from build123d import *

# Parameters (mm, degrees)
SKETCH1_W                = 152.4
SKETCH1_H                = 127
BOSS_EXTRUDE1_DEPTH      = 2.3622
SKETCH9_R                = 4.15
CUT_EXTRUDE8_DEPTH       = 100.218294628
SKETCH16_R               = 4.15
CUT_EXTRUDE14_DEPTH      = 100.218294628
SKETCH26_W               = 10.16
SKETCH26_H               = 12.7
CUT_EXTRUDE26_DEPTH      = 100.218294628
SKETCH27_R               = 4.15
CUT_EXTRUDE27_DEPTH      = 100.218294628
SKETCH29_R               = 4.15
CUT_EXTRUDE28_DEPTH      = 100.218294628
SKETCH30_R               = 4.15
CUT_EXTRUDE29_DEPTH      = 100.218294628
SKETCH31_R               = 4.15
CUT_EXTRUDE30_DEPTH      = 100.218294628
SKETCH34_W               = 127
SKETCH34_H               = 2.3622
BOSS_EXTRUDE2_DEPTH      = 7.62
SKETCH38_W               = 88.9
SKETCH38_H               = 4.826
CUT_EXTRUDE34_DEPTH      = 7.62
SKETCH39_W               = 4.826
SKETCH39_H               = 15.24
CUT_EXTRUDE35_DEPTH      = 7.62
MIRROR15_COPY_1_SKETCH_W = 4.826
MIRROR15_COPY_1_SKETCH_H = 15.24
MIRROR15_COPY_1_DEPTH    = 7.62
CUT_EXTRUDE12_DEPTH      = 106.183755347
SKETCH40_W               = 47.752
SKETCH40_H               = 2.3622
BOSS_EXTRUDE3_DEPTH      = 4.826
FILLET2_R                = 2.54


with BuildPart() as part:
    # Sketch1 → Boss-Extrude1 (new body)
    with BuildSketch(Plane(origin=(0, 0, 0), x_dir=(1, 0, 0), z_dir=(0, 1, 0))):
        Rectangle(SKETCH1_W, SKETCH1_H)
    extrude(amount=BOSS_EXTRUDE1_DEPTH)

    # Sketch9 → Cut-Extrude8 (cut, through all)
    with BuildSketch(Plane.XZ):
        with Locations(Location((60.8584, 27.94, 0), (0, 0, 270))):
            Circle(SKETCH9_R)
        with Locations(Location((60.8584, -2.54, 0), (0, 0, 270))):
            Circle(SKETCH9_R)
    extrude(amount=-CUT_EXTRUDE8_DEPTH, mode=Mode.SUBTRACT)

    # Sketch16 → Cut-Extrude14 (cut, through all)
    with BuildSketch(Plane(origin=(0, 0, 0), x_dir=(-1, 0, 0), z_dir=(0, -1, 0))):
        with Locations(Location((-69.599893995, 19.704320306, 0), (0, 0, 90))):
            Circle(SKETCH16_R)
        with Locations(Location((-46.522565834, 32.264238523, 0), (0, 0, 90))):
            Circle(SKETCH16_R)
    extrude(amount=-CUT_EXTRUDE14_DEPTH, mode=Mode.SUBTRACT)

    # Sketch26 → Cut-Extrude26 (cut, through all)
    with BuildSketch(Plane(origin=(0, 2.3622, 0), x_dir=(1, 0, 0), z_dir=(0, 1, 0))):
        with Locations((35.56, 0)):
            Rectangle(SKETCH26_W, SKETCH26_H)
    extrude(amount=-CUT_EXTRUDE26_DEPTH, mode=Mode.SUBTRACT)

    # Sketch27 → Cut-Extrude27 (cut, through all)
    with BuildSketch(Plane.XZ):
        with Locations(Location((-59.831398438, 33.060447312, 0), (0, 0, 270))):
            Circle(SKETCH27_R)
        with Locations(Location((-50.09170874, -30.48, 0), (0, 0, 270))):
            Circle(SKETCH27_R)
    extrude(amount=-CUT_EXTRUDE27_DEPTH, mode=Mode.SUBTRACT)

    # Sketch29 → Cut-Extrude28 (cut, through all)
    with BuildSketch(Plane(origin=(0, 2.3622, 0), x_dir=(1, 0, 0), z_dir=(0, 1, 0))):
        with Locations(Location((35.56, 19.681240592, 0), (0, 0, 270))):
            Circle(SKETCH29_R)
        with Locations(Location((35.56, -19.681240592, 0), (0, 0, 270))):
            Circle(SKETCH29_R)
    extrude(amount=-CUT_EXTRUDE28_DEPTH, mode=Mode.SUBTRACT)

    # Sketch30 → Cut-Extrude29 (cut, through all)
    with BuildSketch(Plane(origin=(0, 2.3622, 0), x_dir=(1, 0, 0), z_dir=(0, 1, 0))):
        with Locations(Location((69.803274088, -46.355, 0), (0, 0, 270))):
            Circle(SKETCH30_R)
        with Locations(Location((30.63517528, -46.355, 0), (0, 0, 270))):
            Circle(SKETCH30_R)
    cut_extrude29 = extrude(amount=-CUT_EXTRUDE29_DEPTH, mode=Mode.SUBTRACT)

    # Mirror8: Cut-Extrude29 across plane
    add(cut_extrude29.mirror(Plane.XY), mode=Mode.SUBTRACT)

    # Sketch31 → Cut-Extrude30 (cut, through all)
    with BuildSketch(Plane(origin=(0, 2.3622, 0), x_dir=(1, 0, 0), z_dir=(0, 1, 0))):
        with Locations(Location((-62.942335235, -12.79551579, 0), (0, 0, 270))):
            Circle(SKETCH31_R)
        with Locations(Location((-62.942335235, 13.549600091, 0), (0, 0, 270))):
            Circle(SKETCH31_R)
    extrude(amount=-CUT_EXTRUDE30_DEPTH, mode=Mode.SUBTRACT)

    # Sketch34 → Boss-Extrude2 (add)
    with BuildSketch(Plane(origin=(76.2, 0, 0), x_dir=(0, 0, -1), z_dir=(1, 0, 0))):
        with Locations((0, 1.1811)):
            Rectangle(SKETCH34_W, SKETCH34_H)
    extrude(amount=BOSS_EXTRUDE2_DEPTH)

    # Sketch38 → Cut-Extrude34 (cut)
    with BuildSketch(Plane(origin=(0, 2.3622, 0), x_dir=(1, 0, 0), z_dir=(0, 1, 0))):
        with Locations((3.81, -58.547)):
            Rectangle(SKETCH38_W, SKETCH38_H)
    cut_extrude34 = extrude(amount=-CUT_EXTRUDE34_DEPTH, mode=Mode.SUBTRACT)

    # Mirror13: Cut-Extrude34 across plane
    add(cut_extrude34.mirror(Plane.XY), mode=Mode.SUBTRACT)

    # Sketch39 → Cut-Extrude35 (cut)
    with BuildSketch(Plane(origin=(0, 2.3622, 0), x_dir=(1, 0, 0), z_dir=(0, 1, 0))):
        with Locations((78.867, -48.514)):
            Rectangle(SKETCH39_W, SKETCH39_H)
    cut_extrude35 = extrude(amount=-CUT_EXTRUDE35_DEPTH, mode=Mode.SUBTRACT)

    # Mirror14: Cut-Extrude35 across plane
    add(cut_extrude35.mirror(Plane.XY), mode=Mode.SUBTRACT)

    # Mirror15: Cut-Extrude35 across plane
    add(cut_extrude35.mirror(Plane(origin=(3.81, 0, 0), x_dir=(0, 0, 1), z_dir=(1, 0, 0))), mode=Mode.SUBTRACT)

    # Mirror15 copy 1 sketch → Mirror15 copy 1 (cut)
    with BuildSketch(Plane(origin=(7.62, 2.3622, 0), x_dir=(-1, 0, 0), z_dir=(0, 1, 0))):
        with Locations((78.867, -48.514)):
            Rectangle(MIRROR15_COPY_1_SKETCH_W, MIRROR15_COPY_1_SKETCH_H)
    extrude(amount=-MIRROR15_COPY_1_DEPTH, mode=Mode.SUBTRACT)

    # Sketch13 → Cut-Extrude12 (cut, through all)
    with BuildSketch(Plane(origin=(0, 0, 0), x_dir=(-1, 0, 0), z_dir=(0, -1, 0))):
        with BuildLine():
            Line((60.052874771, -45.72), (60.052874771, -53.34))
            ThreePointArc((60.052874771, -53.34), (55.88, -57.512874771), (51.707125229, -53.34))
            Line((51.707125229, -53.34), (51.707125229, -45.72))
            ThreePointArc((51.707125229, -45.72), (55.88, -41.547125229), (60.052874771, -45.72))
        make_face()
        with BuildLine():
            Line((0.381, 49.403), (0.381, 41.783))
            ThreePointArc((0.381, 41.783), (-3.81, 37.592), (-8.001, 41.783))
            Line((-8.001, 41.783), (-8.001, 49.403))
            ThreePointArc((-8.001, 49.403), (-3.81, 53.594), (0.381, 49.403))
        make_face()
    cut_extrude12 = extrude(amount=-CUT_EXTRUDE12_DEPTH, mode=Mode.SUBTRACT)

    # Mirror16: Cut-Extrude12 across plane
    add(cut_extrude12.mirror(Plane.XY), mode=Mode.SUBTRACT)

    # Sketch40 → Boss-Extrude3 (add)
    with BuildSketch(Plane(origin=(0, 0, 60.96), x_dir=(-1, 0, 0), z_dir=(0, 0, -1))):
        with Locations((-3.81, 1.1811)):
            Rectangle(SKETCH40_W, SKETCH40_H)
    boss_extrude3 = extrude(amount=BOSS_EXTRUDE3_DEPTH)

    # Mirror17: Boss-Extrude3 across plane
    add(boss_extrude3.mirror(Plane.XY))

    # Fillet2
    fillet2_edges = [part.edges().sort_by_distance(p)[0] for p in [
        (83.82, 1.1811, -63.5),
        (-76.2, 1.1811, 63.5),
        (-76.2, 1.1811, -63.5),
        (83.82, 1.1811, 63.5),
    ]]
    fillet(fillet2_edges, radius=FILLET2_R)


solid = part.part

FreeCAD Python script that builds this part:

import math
import FreeCAD as App
import Part
import Sketcher
from FreeCAD import Vector
Q = App.Units.Quantity


def edges_at(feature, points):
    """Names of the edges that pass closest to the given points."""
    edges = feature.Shape.Edges
    near = lambda p: min(range(len(edges)), key=lambda i: edges[i].distToShape(Part.Vertex(*p))[0])
    return sorted({f"Edge{near(p) + 1}" for p in points})


def add_polygon(sketch, points):
    """Adds a closed chain of lines whose ends are joined by coincident constraints."""
    first, n = sketch.GeometryCount, len(points)
    for a, b in zip(points, points[1:] + points[:1]):
        sketch.addGeometry(Part.LineSegment(App.Vector(*a, 0), App.Vector(*b, 0)), False)
    for i in range(n):
        sketch.addConstraint(Sketcher.Constraint("Coincident", first + i, 2, first + (i + 1) % n, 1))

doc = App.newDocument("Part")
body = doc.addObject("PartDesign::Body", "Body")

# Sketch on XZ plane
sketch1 = body.newObject("Sketcher::SketchObject", "Sketch")
sketch1.AttachmentSupport = (doc.getObject("XZ_Plane"), [""])
sketch1.MapMode = "FlatFace"
add_polygon(sketch1, [(-76, -64), (-76, 64), (76, 64), (76, -64)])  # lines 0-3
sketch1.addConstraint(Sketcher.Constraint("Vertical", 0))
sketch1.addConstraint(Sketcher.Constraint("Horizontal", 1))
sketch1.addConstraint(Sketcher.Constraint("Vertical", 2))
sketch1.addConstraint(Sketcher.Constraint("Horizontal", 3))
sketch1.addConstraint(Sketcher.Constraint("Symmetric", 0, 2, 2, 2, -1, 1))
sketch1.addConstraint(Sketcher.Constraint("DistanceX", 1, 1, 1, 2, Q("6 in")))
sketch1.addConstraint(Sketcher.Constraint("DistanceY", 0, 1, 0, 2, Q("5 in")))
pad1 = body.newObject("PartDesign::Pad", "Pad")
pad1.Profile = sketch1
pad1.Length = Q("0.093 in")
pad1.Reversed = True

# Sketch on XZ plane
sketch2 = body.newObject("Sketcher::SketchObject", "Sketch001")
sketch2.AttachmentSupport = (doc.getObject("XZ_Plane"), [""])
sketch2.MapMode = "FlatFace"
sketch2.addGeometry(Part.Circle(Vector(60.9, 27.9, 0), Vector(0, 0, 1), 4.2), False)
sketch2.addGeometry(Part.Circle(Vector(60.9, -2.5, 0), Vector(0, 0, 1), 4.2), False)
sketch2.addConstraint(Sketcher.Constraint("Equal", 0, 1))
sketch2.addConstraint(Sketcher.Constraint("Vertical", 0, 3, 1, 3))
sketch2.addConstraint(Sketcher.Constraint("DistanceY", -1, 1, 0, 3, Q("1.1 in")))
sketch2.addConstraint(Sketcher.Constraint("DistanceY", 1, 3, -1, 1, Q("0.1 in")))
sketch2.addConstraint(Sketcher.Constraint("Diameter", 0, 8.3))
sketch2.addConstraint(Sketcher.Constraint("DistanceX", -1, 1, 0, 3, Q("2.396 in")))
pocket1 = body.newObject("PartDesign::Pocket", "Pocket")
pocket1.Profile = sketch2
pocket1.Type = "ThroughAll"

# Sketch on XZ plane
sketch3 = body.newObject("Sketcher::SketchObject", "Sketch002")
sketch3.AttachmentSupport = (doc.getObject("XZ_Plane"), [""])
sketch3.MapMode = "FlatFace"
sketch3.addGeometry(Part.Circle(Vector(69.6, -19.7, 0), Vector(0, 0, 1), 4.2), False)
sketch3.addGeometry(Part.Circle(Vector(46.5, -32.3, 0), Vector(0, 0, 1), 4.2), False)
sketch3.addConstraint(Sketcher.Constraint("Equal", 0, 1))
sketch3.addConstraint(Sketcher.Constraint("Diameter", 0, 8.3))
sketch3.addConstraint(Sketcher.Constraint("DistanceY", 0, 3, -1, 1, 19.70432))
sketch3.addConstraint(Sketcher.Constraint("DistanceY", 1, 3, -1, 1, 32.264239))
sketch3.addConstraint(Sketcher.Constraint("DistanceX", 1, 3, 0, 3, 23.077328))
sketch3.addConstraint(Sketcher.Constraint("DistanceX", -1, 1, 0, 3, 69.599894))
pocket2 = body.newObject("PartDesign::Pocket", "Pocket001")
pocket2.Profile = sketch3
pocket2.Type = "ThroughAll"

# Sketch on XZ plane
sketch4 = body.newObject("Sketcher::SketchObject", "Sketch003")
sketch4.AttachmentSupport = (doc.getObject("XZ_Plane"), [""])
sketch4.MapMode = "FlatFace"
sketch4.AttachmentOffset = App.Placement(Vector(0, 0, -0.093 * 25.4), App.Rotation())
add_polygon(sketch4, [(30, -6), (30, 6), (41, 6), (41, -6)])  # lines 0-3
sketch4.addConstraint(Sketcher.Constraint("Vertical", 0))
sketch4.addConstraint(Sketcher.Constraint("Horizontal", 1))
sketch4.addConstraint(Sketcher.Constraint("Vertical", 2))
sketch4.addConstraint(Sketcher.Constraint("Horizontal", 3))
sketch4.addConstraint(Sketcher.Constraint("DistanceX", 1, 1, 1, 2, Q("0.4 in")))
sketch4.addConstraint(Sketcher.Constraint("DistanceY", 0, 1, 0, 2, Q("0.5 in")))
sketch4.addConstraint(Sketcher.Constraint("DistanceX", -1, 1, 0, 2, Q("1.2 in")))
sketch4.addConstraint(Sketcher.Constraint("DistanceY", -1, 1, 0, 2, Q("0.25 in")))
pocket3 = body.newObject("PartDesign::Pocket", "Pocket002")
pocket3.Profile = sketch4
pocket3.Type = "ThroughAll"
pocket3.Reversed = True

# Sketch on XZ plane
sketch5 = body.newObject("Sketcher::SketchObject", "Sketch004")
sketch5.AttachmentSupport = (doc.getObject("XZ_Plane"), [""])
sketch5.MapMode = "FlatFace"
sketch5.addGeometry(Part.Circle(Vector(-59.8, 33.1, 0), Vector(0, 0, 1), 4.2), False)
sketch5.addGeometry(Part.Circle(Vector(-50.1, -30.5, 0), Vector(0, 0, 1), 4.2), False)
sketch5.addConstraint(Sketcher.Constraint("Equal", 0, 1))
sketch5.addConstraint(Sketcher.Constraint("DistanceY", 1, 3, -1, 1, Q("1.2 in")))
sketch5.addConstraint(Sketcher.Constraint("Diameter", 0, 8.3))
sketch5.addConstraint(Sketcher.Constraint("DistanceX", 0, 3, -1, 1, 59.831398))
sketch5.addConstraint(Sketcher.Constraint("DistanceX", 1, 3, -1, 1, 50.091709))
sketch5.addConstraint(Sketcher.Constraint("DistanceY", -1, 1, 0, 3, 33.060447))
pocket4 = body.newObject("PartDesign::Pocket", "Pocket003")
pocket4.Profile = sketch5
pocket4.Type = "ThroughAll"

# Sketch on XZ plane
sketch6 = body.newObject("Sketcher::SketchObject", "Sketch005")
sketch6.AttachmentSupport = (doc.getObject("XZ_Plane"), [""])
sketch6.MapMode = "FlatFace"
sketch6.AttachmentOffset = App.Placement(Vector(0, 0, -0.093 * 25.4), App.Rotation())
sketch6.addGeometry(Part.Circle(Vector(35.6, -19.7, 0), Vector(0, 0, 1), 4.2), False)
sketch6.addGeometry(Part.Circle(Vector(35.6, 19.7, 0), Vector(0, 0, 1), 4.2), False)
sketch6.addConstraint(Sketcher.Constraint("Equal", 0, 1))
sketch6.addConstraint(Sketcher.Constraint("Symmetric", 0, 3, 1, 3, -1))
sketch6.addConstraint(Sketcher.Constraint("DistanceX", -1, 1, 0, 3, Q("1.4 in")))
sketch6.addConstraint(Sketcher.Constraint("Diameter", 0, 8.3))
sketch6.addConstraint(Sketcher.Constraint("DistanceY", 0, 3, -1, 1, 19.681241))
pocket5 = body.newObject("PartDesign::Pocket", "Pocket004")
pocket5.Profile = sketch6
pocket5.Type = "ThroughAll"
pocket5.Reversed = True

# Sketch on XZ plane
sketch7 = body.newObject("Sketcher::SketchObject", "Sketch006")
sketch7.AttachmentSupport = (doc.getObject("XZ_Plane"), [""])
sketch7.MapMode = "FlatFace"
sketch7.AttachmentOffset = App.Placement(Vector(0, 0, -0.093 * 25.4), App.Rotation())
sketch7.addGeometry(Part.Circle(Vector(69.8, 46.4, 0), Vector(0, 0, 1), 4.2), False)
sketch7.addGeometry(Part.Circle(Vector(30.6, 46.4, 0), Vector(0, 0, 1), 4.2), False)
sketch7.addConstraint(Sketcher.Constraint("Equal", 0, 1))
sketch7.addConstraint(Sketcher.Constraint("Horizontal", 0, 3, 1, 3))
sketch7.addConstraint(Sketcher.Constraint("Diameter", 0, 8.3))
sketch7.addConstraint(Sketcher.Constraint("DistanceY", -1, 1, 0, 3, Q("1.825 in")))
sketch7.addConstraint(Sketcher.Constraint("DistanceX", 1, 3, 0, 3, 39.168099))
sketch7.addConstraint(Sketcher.Constraint("DistanceX", -1, 1, 0, 3, 69.803274))
pocket6 = body.newObject("PartDesign::Pocket", "Pocket005")
pocket6.Profile = sketch7
pocket6.Type = "ThroughAll"
pocket6.Reversed = True
doc.recompute()

mirrored = body.newObject("PartDesign::Mirrored", "Mirrored")
mirrored.Originals = [pocket6]
mirrored.MirrorPlane = (doc.getObject("XY_Plane"), [""])
body.Tip = mirrored

# Sketch on XZ plane
sketch8 = body.newObject("Sketcher::SketchObject", "Sketch007")
sketch8.AttachmentSupport = (doc.getObject("XZ_Plane"), [""])
sketch8.MapMode = "FlatFace"
sketch8.AttachmentOffset = App.Placement(Vector(0, 0, -0.093 * 25.4), App.Rotation())
sketch8.addGeometry(Part.Circle(Vector(-62.9, 12.8, 0), Vector(0, 0, 1), 4.2), False)
sketch8.addGeometry(Part.Circle(Vector(-62.9, -13.5, 0), Vector(0, 0, 1), 4.2), False)
sketch8.addConstraint(Sketcher.Constraint("Equal", 0, 1))
sketch8.addConstraint(Sketcher.Constraint("Vertical", 0, 3, 1, 3))
sketch8.addConstraint(Sketcher.Constraint("Diameter", 0, 8.3))
sketch8.addConstraint(Sketcher.Constraint("DistanceY", 1, 3, -1, 1, 13.5496))
sketch8.addConstraint(Sketcher.Constraint("DistanceX", 0, 3, -1, 1, 62.942335))
sketch8.addConstraint(Sketcher.Constraint("DistanceY", -1, 1, 0, 3, 12.795516))
pocket7 = body.newObject("PartDesign::Pocket", "Pocket006")
pocket7.Profile = sketch8
pocket7.Type = "ThroughAll"
pocket7.Reversed = True

# Sketch on YZ plane
sketch9 = body.newObject("Sketcher::SketchObject", "Sketch008")
sketch9.AttachmentSupport = (doc.getObject("YZ_Plane"), [""])
sketch9.MapMode = "FlatFace"
sketch9.AttachmentOffset = App.Placement(Vector(0, 0, 3 * 25.4), App.Rotation())
add_polygon(sketch9, [(2.4, 63.5), (0, 63.5), (0, -63.5), (2.4, -63.5)])  # lines 0-3
sketch9.addConstraint(Sketcher.Constraint("Horizontal", 0))
sketch9.addConstraint(Sketcher.Constraint("Vertical", 1))
sketch9.addConstraint(Sketcher.Constraint("Horizontal", 2))
sketch9.addConstraint(Sketcher.Constraint("Vertical", 3))
sketch9.addConstraint(Sketcher.Constraint("Symmetric", 0, 2, 1, 2, -1, 1))
sketch9.addConstraint(Sketcher.Constraint("DistanceY", 1, 2, 1, 1, Q("5 in")))
sketch9.addConstraint(Sketcher.Constraint("DistanceX", 0, 2, 0, 1, Q("0.093 in")))
pad2 = body.newObject("PartDesign::Pad", "Pad001")
pad2.Profile = sketch9
pad2.Length = Q("0.3 in")

# Sketch on XZ plane
sketch10 = body.newObject("Sketcher::SketchObject", "Sketch009")
sketch10.AttachmentSupport = (doc.getObject("XZ_Plane"), [""])
sketch10.MapMode = "FlatFace"
sketch10.AttachmentOffset = App.Placement(Vector(0, 0, -0.093 * 25.4), App.Rotation())
add_polygon(sketch10, [(-40.6, 56.1), (-40.6, 61), (48.3, 61), (48.3, 56.1)])  # lines 0-3
sketch10.addConstraint(Sketcher.Constraint("Vertical", 0))
sketch10.addConstraint(Sketcher.Constraint("Horizontal", 1))
sketch10.addConstraint(Sketcher.Constraint("Vertical", 2))
sketch10.addConstraint(Sketcher.Constraint("Horizontal", 3))
sketch10.addConstraint(Sketcher.Constraint("DistanceX", 1, 1, 1, 2, Q("3.5 in")))
sketch10.addConstraint(Sketcher.Constraint("DistanceY", 0, 1, 0, 2, Q("0.19 in")))
sketch10.addConstraint(Sketcher.Constraint("DistanceX", 0, 2, -1, 1, Q("1.6 in")))
sketch10.addConstraint(Sketcher.Constraint("DistanceY", -1, 1, 0, 2, Q("2.4 in")))
pocket8 = body.newObject("PartDesign::Pocket", "Pocket007")
pocket8.Profile = sketch10
pocket8.Length = Q("0.3 in")
pocket8.Reversed = True
doc.recompute()

mirrored2 = body.newObject("PartDesign::Mirrored", "Mirrored001")
mirrored2.Originals = [pocket8]
mirrored2.MirrorPlane = (doc.getObject("XY_Plane"), [""])
body.Tip = mirrored2

# Sketch on XZ plane
sketch11 = body.newObject("Sketcher::SketchObject", "Sketch010")
sketch11.AttachmentSupport = (doc.getObject("XZ_Plane"), [""])
sketch11.MapMode = "FlatFace"
sketch11.AttachmentOffset = App.Placement(Vector(0, 0, -0.093 * 25.4), App.Rotation())
add_polygon(sketch11, [(76.5, 40.9), (76.5, 56.1), (81.3, 56.1), (81.3, 40.9)])  # lines 0-3
sketch11.addConstraint(Sketcher.Constraint("Vertical", 0))
sketch11.addConstraint(Sketcher.Constraint("Horizontal", 1))
sketch11.addConstraint(Sketcher.Constraint("Vertical", 2))
sketch11.addConstraint(Sketcher.Constraint("Horizontal", 3))
sketch11.addConstraint(Sketcher.Constraint("DistanceY", 0, 1, 0, 2, Q("0.6 in")))
sketch11.addConstraint(Sketcher.Constraint("DistanceX", 1, 1, 1, 2, Q("0.19 in")))
sketch11.addConstraint(Sketcher.Constraint("DistanceX", -1, 1, 1, 2, Q("3.2 in")))
sketch11.addConstraint(Sketcher.Constraint("DistanceY", -1, 1, 0, 2, Q("2.21 in")))
pocket9 = body.newObject("PartDesign::Pocket", "Pocket008")
pocket9.Profile = sketch11
pocket9.Length = Q("0.3 in")
pocket9.Reversed = True
doc.recompute()

mirrored3 = body.newObject("PartDesign::Mirrored", "Mirrored002")
mirrored3.Originals = [pocket9]
mirrored3.MirrorPlane = (doc.getObject("XY_Plane"), [""])
body.Tip = mirrored3
doc.recompute()

datumplane = body.newObject("PartDesign::Plane", "DatumPlane")
datumplane.AttachmentSupport = (doc.getObject("YZ_Plane"), [""])
datumplane.MapMode = "FlatFace"
datumplane.AttachmentOffset = App.Placement(Vector(0, 0, 0.15 * 25.4), App.Rotation())
mirrored4 = body.newObject("PartDesign::Mirrored", "Mirrored003")
mirrored4.Originals = [pocket9]
mirrored4.MirrorPlane = (datumplane, [""])
body.Tip = mirrored4

# Sketch on XZ plane
sketch12 = body.newObject("Sketcher::SketchObject", "Sketch011")
sketch12.AttachmentSupport = (doc.getObject("XZ_Plane"), [""])
sketch12.MapMode = "FlatFace"
sketch12.AttachmentOffset = App.Placement(Vector(0, 0, -0.093 * 25.4), App.Rotation())
add_polygon(sketch12, [(-68.8, -40.9), (-68.8, -56.1), (-73.7, -56.1), (-73.7, -40.9)])  # lines 0-3
sketch12.addConstraint(Sketcher.Constraint("Vertical", 0))
sketch12.addConstraint(Sketcher.Constraint("Horizontal", 1))
sketch12.addConstraint(Sketcher.Constraint("Vertical", 2))
sketch12.addConstraint(Sketcher.Constraint("Horizontal", 3))
sketch12.addConstraint(Sketcher.Constraint("DistanceY", 0, 2, 0, 1, Q("0.6 in")))
sketch12.addConstraint(Sketcher.Constraint("DistanceX", 1, 2, 1, 1, Q("0.19 in")))
sketch12.addConstraint(Sketcher.Constraint("DistanceX", 1, 2, -1, 1, Q("2.9 in")))
sketch12.addConstraint(Sketcher.Constraint("DistanceY", 0, 2, -1, 1, Q("2.21 in")))
pocket10 = body.newObject("PartDesign::Pocket", "Pocket009")
pocket10.Profile = sketch12
pocket10.Length = Q("0.3 in")
pocket10.Reversed = True

# Sketch on XZ plane
sketch13 = body.newObject("Sketcher::SketchObject", "Sketch012")
sketch13.AttachmentSupport = (doc.getObject("XZ_Plane"), [""])
sketch13.MapMode = "FlatFace"
sketch13.addGeometry(Part.LineSegment(Vector(-60.1, 53.3, 0), Vector(-60.1, 45.7, 0)), False)
sketch13.addGeometry(Part.ArcOfCircle(Part.Circle(Vector(-55.9, 45.7, 0), Vector(0, 0, 1), 4.2), math.radians(180), math.radians(360)), False)
sketch13.addGeometry(Part.LineSegment(Vector(-51.7, 45.7, 0), Vector(-51.7, 53.3, 0)), False)
sketch13.addGeometry(Part.ArcOfCircle(Part.Circle(Vector(-55.9, 53.3, 0), Vector(0, 0, 1), 4.2), math.radians(0), math.radians(180)), False)
sketch13.addGeometry(Part.LineSegment(Vector(-0.4, -41.8, 0), Vector(-0.4, -49.4, 0)), False)
sketch13.addGeometry(Part.ArcOfCircle(Part.Circle(Vector(3.8, -49.4, 0), Vector(0, 0, 1), 4.2), math.radians(180), math.radians(360)), False)
sketch13.addGeometry(Part.LineSegment(Vector(8, -49.4, 0), Vector(8, -41.8, 0)), False)
sketch13.addGeometry(Part.ArcOfCircle(Part.Circle(Vector(3.8, -41.8, 0), Vector(0, 0, 1), 4.2), math.radians(0), math.radians(180)), False)
sketch13.addConstraint(Sketcher.Constraint("Tangent", 0, 2, 1, 1))
sketch13.addConstraint(Sketcher.Constraint("Tangent", 1, 2, 2, 1))
sketch13.addConstraint(Sketcher.Constraint("Tangent", 2, 2, 3, 1))
sketch13.addConstraint(Sketcher.Constraint("Tangent", 3, 2, 0, 1))
sketch13.addConstraint(Sketcher.Constraint("Tangent", 4, 2, 5, 1))
sketch13.addConstraint(Sketcher.Constraint("Tangent", 5, 2, 6, 1))
sketch13.addConstraint(Sketcher.Constraint("Tangent", 6, 2, 7, 1))
sketch13.addConstraint(Sketcher.Constraint("Tangent", 7, 2, 4, 1))
sketch13.addConstraint(Sketcher.Constraint("Vertical", 0))
sketch13.addConstraint(Sketcher.Constraint("Vertical", 2))
sketch13.addConstraint(Sketcher.Constraint("Vertical", 4))
sketch13.addConstraint(Sketcher.Constraint("Vertical", 6))
sketch13.addConstraint(Sketcher.Constraint("Equal", 2, 4))
sketch13.addConstraint(Sketcher.Constraint("DistanceY", 0, 2, 0, 1, Q("0.3 in")))
sketch13.addConstraint(Sketcher.Constraint("Radius", 5, Q("0.165 in")))
sketch13.addConstraint(Sketcher.Constraint("DistanceX", 1, 3, -1, 1, Q("2.2 in")))
sketch13.addConstraint(Sketcher.Constraint("DistanceY", -1, 1, 1, 3, Q("1.8 in")))
sketch13.addConstraint(Sketcher.Constraint("DistanceX", -1, 1, 5, 3, Q("0.15 in")))
sketch13.addConstraint(Sketcher.Constraint("DistanceY", 5, 3, -1, 1, Q("1.945 in")))
sketch13.addConstraint(Sketcher.Constraint("Radius", 1, 4.172875))
pocket11 = body.newObject("PartDesign::Pocket", "Pocket010")
pocket11.Profile = sketch13
pocket11.Type = "ThroughAll"
doc.recompute()

mirrored5 = body.newObject("PartDesign::Mirrored", "Mirrored004")
mirrored5.Originals = [pocket11]
mirrored5.MirrorPlane = (doc.getObject("XY_Plane"), [""])
body.Tip = mirrored5

# Sketch on XY plane
sketch14 = body.newObject("Sketcher::SketchObject", "Sketch013")
sketch14.AttachmentSupport = (doc.getObject("XY_Plane"), [""])
sketch14.MapMode = "FlatFace"
sketch14.AttachmentOffset = App.Placement(Vector(0, 0, 2.4 * 25.4), App.Rotation())
add_polygon(sketch14, [(27.7, 2.4), (27.7, 0), (-20.1, 0), (-20.1, 2.4)])  # lines 0-3
sketch14.addConstraint(Sketcher.Constraint("Vertical", 0))
sketch14.addConstraint(Sketcher.Constraint("Horizontal", 1))
sketch14.addConstraint(Sketcher.Constraint("Vertical", 2))
sketch14.addConstraint(Sketcher.Constraint("Horizontal", 3))
sketch14.addConstraint(Sketcher.Constraint("PointOnObject", 0, 2, -1))
sketch14.addConstraint(Sketcher.Constraint("DistanceX", 1, 2, 1, 1, Q("1.88 in")))
sketch14.addConstraint(Sketcher.Constraint("DistanceY", 0, 2, 0, 1, Q("0.093 in")))
sketch14.addConstraint(Sketcher.Constraint("DistanceX", -1, 1, 0, 2, Q("1.09 in")))
pad3 = body.newObject("PartDesign::Pad", "Pad002")
pad3.Profile = sketch14
pad3.Length = Q("0.19 in")
pad3.Reversed = True
doc.recompute()

mirrored6 = body.newObject("PartDesign::Mirrored", "Mirrored005")
mirrored6.Originals = [pad3]
mirrored6.MirrorPlane = (doc.getObject("XY_Plane"), [""])
body.Tip = mirrored6
doc.recompute()

fillet = body.newObject("PartDesign::Fillet", "Fillet")
fillet.Base = (mirrored6, edges_at(mirrored6, [
    (83.82, 1.181, -63.5),
    (-76.2, 1.181, 63.5),
    (-76.2, 1.181, -63.5),
    (83.82, 1.181, 63.5),
]))
fillet.Radius = Q("0.1 in")

doc.recompute()
